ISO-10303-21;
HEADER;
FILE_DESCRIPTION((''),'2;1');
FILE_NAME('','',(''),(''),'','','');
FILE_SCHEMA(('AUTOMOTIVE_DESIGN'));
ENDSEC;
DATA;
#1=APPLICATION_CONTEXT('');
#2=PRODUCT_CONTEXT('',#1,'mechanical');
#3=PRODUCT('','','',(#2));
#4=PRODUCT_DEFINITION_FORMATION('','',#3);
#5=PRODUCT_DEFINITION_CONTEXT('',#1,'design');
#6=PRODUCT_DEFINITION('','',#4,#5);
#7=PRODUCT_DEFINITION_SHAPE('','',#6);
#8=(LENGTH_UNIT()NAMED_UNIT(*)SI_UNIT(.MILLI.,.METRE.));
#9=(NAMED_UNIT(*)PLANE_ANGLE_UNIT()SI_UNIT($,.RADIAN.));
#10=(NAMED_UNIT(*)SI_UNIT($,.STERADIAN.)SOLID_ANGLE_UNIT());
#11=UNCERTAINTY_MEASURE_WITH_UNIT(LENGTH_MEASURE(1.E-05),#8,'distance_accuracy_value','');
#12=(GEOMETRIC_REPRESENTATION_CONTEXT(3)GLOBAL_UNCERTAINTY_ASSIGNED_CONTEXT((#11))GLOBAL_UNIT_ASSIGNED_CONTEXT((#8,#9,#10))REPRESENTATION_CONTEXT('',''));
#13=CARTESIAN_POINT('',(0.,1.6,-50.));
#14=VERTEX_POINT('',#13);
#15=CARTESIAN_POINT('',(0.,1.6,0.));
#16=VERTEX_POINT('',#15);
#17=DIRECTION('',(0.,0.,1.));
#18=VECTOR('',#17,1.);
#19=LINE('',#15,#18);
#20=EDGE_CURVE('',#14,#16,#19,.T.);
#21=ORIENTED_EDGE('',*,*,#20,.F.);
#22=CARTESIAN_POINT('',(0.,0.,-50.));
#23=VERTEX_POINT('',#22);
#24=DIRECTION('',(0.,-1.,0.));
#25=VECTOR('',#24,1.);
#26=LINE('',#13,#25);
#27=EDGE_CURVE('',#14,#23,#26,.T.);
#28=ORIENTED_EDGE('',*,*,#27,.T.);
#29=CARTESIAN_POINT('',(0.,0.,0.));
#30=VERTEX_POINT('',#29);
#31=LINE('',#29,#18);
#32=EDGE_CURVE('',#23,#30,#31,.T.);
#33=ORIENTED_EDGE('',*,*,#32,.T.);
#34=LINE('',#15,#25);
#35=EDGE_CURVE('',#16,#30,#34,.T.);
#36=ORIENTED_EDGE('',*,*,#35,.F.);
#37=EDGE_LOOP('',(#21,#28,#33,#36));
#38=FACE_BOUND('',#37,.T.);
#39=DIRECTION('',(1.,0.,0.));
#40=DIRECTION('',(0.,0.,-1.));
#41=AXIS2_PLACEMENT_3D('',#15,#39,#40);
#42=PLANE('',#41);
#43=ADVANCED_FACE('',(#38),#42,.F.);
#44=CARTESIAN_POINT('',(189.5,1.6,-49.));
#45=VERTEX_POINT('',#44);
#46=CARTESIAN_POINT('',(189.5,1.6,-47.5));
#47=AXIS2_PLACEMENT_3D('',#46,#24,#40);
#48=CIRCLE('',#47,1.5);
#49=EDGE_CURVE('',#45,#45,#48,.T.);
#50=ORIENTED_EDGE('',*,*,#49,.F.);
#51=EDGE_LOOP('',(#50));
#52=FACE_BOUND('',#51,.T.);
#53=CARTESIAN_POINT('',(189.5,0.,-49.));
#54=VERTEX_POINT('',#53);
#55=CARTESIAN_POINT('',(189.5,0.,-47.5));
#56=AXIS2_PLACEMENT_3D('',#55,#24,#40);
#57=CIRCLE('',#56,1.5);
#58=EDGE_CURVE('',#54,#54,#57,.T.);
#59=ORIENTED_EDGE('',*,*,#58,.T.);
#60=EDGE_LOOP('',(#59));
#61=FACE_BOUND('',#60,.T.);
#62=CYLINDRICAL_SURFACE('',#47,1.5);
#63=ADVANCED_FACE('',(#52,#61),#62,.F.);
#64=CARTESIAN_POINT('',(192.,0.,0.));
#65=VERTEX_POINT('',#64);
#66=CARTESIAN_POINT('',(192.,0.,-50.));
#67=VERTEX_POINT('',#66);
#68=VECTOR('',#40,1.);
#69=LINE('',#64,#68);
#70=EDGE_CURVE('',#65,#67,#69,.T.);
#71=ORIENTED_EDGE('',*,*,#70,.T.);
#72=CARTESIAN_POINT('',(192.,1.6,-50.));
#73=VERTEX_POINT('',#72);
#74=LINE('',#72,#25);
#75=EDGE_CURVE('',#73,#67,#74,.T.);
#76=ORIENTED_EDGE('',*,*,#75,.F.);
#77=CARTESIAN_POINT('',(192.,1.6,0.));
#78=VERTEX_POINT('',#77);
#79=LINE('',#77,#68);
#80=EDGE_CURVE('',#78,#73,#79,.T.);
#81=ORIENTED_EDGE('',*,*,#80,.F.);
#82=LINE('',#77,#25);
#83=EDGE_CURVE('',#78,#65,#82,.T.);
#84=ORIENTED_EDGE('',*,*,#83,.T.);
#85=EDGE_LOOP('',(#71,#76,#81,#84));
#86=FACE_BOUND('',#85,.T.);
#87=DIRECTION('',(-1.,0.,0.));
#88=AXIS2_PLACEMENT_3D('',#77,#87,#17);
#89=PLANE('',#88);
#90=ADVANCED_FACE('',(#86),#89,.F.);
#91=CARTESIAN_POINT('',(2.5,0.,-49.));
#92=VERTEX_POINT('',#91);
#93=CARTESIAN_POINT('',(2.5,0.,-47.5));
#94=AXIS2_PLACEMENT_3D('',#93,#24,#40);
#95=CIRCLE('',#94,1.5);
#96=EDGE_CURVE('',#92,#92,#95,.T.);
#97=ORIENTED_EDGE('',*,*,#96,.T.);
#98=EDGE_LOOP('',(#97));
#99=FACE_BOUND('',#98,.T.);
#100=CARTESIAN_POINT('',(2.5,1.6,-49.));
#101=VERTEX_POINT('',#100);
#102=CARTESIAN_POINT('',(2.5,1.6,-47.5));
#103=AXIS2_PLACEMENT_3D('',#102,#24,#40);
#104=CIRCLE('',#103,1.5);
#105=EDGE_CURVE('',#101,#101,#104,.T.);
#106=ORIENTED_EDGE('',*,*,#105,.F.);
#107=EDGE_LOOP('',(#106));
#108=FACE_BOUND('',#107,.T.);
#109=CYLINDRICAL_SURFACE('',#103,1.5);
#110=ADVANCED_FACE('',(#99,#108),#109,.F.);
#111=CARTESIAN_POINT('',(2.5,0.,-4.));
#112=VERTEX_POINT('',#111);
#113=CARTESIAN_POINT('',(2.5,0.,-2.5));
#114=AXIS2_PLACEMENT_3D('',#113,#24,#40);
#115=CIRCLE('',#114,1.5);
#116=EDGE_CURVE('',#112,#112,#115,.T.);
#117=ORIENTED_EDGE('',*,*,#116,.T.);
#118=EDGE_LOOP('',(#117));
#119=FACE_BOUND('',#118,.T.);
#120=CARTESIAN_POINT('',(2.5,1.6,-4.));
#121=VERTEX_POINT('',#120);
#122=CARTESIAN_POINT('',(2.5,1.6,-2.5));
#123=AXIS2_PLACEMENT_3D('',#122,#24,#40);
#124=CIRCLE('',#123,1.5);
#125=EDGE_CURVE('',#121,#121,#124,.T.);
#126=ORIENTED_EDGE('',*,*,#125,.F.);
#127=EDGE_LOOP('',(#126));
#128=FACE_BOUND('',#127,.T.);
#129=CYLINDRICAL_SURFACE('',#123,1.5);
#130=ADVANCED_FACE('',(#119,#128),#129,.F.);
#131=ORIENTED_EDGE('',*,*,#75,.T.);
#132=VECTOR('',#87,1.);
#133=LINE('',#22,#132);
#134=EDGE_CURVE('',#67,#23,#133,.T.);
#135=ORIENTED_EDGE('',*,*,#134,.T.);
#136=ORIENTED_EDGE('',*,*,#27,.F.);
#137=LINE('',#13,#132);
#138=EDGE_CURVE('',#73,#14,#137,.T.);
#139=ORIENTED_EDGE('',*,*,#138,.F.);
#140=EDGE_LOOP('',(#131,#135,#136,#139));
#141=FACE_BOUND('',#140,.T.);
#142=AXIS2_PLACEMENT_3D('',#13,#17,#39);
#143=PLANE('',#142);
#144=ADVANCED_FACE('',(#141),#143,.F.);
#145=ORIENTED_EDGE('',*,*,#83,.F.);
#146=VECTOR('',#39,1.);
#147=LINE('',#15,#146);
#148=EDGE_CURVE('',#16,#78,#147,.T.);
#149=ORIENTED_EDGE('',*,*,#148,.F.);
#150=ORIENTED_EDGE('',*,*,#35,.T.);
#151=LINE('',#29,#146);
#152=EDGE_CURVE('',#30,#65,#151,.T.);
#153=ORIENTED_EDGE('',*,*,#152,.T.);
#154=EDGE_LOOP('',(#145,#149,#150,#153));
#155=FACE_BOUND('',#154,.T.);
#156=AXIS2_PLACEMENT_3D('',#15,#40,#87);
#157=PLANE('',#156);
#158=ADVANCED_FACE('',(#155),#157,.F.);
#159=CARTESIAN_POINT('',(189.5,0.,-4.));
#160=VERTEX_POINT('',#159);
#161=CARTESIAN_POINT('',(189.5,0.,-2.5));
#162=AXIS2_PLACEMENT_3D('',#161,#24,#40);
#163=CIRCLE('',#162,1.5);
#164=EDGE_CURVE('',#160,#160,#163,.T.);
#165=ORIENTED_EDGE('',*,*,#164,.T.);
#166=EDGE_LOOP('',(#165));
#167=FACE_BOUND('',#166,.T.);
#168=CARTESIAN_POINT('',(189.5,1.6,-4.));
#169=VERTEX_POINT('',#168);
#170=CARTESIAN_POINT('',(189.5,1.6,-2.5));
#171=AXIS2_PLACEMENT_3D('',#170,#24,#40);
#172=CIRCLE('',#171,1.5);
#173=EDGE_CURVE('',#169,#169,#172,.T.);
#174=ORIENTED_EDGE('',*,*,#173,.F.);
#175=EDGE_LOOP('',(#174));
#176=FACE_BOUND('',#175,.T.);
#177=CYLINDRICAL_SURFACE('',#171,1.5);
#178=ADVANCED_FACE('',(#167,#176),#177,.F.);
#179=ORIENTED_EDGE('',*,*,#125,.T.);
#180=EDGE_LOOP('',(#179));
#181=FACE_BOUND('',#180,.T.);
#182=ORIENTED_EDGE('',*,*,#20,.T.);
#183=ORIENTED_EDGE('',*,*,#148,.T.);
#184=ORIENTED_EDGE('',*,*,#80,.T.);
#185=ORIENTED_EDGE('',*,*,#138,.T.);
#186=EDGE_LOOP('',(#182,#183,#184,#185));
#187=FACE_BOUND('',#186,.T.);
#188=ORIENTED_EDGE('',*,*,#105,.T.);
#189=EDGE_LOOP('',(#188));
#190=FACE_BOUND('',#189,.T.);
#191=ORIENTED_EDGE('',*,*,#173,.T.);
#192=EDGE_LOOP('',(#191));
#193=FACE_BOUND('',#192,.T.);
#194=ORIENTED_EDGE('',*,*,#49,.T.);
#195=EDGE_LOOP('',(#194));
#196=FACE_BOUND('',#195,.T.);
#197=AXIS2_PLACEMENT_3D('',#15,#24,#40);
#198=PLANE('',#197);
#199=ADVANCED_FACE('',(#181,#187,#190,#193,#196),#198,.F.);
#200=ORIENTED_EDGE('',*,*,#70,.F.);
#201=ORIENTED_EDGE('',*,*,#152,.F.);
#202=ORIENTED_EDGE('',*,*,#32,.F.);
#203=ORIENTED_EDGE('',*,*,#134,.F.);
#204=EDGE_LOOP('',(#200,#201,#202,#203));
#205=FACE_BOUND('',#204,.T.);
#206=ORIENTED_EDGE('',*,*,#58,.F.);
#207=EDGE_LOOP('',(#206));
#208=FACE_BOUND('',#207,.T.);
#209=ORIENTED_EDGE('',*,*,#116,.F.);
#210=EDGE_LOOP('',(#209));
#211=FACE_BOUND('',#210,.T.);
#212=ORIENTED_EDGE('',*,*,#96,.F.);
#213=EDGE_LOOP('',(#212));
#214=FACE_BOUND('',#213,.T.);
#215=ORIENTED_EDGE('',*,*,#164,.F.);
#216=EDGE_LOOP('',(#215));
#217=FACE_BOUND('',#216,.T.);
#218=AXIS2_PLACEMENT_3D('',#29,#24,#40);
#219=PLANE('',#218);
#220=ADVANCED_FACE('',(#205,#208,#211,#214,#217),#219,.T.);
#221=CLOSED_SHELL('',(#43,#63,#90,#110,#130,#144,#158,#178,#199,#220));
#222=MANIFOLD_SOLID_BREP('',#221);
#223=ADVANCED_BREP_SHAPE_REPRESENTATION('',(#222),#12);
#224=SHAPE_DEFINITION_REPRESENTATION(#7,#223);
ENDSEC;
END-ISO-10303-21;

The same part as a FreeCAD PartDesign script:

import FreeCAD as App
import Part
import Sketcher
Q = App.Units.Quantity


def add_polygon(sketch, points):
    """Adds a closed chain of lines whose ends are joined by coincident constraints."""
    first, n = sketch.GeometryCount, len(points)
    for a, b in zip(points, points[1:] + points[:1]):
        sketch.addGeometry(Part.LineSegment(App.Vector(*a, 0), App.Vector(*b, 0)), False)
    for i in range(n):
        sketch.addConstraint(Sketcher.Constraint("Coincident", first + i, 2, first + (i + 1) % n, 1))

doc = App.newDocument("Part")
body = doc.addObject("PartDesign::Body", "Body")

sketch1 = body.newObject("Sketcher::SketchObject", "Sketch")
sketch1.AttachmentSupport = (doc.getObject("XZ_Plane"), [""])
sketch1.MapMode = "FlatFace"
add_polygon(sketch1, [(0, -50), (0, 0), (192, 0), (192, -50)])
sketch1.addConstraint([
    Sketcher.Constraint("Vertical", 0),
    Sketcher.Constraint("Horizontal", 1),
    Sketcher.Constraint("Vertical", 2),
    Sketcher.Constraint("Horizontal", 3),
    Sketcher.Constraint("Coincident", 0, 2, -1, 1),
    Sketcher.Constraint("DistanceX", 1, 1, 1, 2, Q("192 mm")),
    Sketcher.Constraint("DistanceY", 0, 1, 0, 2, Q("50 mm")),
])
pad1 = body.newObject("PartDesign::Pad", "Pad")
pad1.Profile = sketch1
pad1.Length = 1.6
pad1.Reversed = True

sketch2 = body.newObject("Sketcher::SketchObject", "Sketch001")
sketch2.AttachmentSupport = (doc.getObject("XZ_Plane"), [""])
sketch2.MapMode = "FlatFace"
sketch2.addGeometry([
    Part.Circle(App.Vector(2.5, -2.5, 0), App.Vector(0, 0, 1), 1.5),
    Part.Circle(App.Vector(189.5, -2.5, 0), App.Vector(0, 0, 1), 1.5),
    Part.Circle(App.Vector(189.5, -47.5, 0), App.Vector(0, 0, 1), 1.5),
    Part.Circle(App.Vector(2.5, -47.5, 0), App.Vector(0, 0, 1), 1.5),
], False)
sketch2.addConstraint([
    Sketcher.Constraint("Equal", 0, 1),
    Sketcher.Constraint("Equal", 1, 2),
    Sketcher.Constraint("Equal", 2, 3),
    Sketcher.Constraint("Horizontal", 0, 3, 1, 3),
    Sketcher.Constraint("Horizontal", 2, 3, 3, 3),
    Sketcher.Constraint("Vertical", 1, 3, 2, 3),
    Sketcher.Constraint("Vertical", 0, 3, 3, 3),
    Sketcher.Constraint("Diameter", 0, Q("3 mm")),
    Sketcher.Constraint("DistanceX", 0, 3, 1, 3, Q("187 mm")),
    Sketcher.Constraint("DistanceY", 2, 3, 1, 3, Q("45 mm")),
    Sketcher.Constraint("DistanceX", -1, 1, 0, 3, Q("2.5 mm")),
    Sketcher.Constraint("DistanceY", 0, 3, -1, 1, Q("2.5 mm")),
])
pocket1 = body.newObject("PartDesign::Pocket", "Pocket")
pocket1.Profile = sketch2
pocket1.Length = 1.6

doc.recompute()
